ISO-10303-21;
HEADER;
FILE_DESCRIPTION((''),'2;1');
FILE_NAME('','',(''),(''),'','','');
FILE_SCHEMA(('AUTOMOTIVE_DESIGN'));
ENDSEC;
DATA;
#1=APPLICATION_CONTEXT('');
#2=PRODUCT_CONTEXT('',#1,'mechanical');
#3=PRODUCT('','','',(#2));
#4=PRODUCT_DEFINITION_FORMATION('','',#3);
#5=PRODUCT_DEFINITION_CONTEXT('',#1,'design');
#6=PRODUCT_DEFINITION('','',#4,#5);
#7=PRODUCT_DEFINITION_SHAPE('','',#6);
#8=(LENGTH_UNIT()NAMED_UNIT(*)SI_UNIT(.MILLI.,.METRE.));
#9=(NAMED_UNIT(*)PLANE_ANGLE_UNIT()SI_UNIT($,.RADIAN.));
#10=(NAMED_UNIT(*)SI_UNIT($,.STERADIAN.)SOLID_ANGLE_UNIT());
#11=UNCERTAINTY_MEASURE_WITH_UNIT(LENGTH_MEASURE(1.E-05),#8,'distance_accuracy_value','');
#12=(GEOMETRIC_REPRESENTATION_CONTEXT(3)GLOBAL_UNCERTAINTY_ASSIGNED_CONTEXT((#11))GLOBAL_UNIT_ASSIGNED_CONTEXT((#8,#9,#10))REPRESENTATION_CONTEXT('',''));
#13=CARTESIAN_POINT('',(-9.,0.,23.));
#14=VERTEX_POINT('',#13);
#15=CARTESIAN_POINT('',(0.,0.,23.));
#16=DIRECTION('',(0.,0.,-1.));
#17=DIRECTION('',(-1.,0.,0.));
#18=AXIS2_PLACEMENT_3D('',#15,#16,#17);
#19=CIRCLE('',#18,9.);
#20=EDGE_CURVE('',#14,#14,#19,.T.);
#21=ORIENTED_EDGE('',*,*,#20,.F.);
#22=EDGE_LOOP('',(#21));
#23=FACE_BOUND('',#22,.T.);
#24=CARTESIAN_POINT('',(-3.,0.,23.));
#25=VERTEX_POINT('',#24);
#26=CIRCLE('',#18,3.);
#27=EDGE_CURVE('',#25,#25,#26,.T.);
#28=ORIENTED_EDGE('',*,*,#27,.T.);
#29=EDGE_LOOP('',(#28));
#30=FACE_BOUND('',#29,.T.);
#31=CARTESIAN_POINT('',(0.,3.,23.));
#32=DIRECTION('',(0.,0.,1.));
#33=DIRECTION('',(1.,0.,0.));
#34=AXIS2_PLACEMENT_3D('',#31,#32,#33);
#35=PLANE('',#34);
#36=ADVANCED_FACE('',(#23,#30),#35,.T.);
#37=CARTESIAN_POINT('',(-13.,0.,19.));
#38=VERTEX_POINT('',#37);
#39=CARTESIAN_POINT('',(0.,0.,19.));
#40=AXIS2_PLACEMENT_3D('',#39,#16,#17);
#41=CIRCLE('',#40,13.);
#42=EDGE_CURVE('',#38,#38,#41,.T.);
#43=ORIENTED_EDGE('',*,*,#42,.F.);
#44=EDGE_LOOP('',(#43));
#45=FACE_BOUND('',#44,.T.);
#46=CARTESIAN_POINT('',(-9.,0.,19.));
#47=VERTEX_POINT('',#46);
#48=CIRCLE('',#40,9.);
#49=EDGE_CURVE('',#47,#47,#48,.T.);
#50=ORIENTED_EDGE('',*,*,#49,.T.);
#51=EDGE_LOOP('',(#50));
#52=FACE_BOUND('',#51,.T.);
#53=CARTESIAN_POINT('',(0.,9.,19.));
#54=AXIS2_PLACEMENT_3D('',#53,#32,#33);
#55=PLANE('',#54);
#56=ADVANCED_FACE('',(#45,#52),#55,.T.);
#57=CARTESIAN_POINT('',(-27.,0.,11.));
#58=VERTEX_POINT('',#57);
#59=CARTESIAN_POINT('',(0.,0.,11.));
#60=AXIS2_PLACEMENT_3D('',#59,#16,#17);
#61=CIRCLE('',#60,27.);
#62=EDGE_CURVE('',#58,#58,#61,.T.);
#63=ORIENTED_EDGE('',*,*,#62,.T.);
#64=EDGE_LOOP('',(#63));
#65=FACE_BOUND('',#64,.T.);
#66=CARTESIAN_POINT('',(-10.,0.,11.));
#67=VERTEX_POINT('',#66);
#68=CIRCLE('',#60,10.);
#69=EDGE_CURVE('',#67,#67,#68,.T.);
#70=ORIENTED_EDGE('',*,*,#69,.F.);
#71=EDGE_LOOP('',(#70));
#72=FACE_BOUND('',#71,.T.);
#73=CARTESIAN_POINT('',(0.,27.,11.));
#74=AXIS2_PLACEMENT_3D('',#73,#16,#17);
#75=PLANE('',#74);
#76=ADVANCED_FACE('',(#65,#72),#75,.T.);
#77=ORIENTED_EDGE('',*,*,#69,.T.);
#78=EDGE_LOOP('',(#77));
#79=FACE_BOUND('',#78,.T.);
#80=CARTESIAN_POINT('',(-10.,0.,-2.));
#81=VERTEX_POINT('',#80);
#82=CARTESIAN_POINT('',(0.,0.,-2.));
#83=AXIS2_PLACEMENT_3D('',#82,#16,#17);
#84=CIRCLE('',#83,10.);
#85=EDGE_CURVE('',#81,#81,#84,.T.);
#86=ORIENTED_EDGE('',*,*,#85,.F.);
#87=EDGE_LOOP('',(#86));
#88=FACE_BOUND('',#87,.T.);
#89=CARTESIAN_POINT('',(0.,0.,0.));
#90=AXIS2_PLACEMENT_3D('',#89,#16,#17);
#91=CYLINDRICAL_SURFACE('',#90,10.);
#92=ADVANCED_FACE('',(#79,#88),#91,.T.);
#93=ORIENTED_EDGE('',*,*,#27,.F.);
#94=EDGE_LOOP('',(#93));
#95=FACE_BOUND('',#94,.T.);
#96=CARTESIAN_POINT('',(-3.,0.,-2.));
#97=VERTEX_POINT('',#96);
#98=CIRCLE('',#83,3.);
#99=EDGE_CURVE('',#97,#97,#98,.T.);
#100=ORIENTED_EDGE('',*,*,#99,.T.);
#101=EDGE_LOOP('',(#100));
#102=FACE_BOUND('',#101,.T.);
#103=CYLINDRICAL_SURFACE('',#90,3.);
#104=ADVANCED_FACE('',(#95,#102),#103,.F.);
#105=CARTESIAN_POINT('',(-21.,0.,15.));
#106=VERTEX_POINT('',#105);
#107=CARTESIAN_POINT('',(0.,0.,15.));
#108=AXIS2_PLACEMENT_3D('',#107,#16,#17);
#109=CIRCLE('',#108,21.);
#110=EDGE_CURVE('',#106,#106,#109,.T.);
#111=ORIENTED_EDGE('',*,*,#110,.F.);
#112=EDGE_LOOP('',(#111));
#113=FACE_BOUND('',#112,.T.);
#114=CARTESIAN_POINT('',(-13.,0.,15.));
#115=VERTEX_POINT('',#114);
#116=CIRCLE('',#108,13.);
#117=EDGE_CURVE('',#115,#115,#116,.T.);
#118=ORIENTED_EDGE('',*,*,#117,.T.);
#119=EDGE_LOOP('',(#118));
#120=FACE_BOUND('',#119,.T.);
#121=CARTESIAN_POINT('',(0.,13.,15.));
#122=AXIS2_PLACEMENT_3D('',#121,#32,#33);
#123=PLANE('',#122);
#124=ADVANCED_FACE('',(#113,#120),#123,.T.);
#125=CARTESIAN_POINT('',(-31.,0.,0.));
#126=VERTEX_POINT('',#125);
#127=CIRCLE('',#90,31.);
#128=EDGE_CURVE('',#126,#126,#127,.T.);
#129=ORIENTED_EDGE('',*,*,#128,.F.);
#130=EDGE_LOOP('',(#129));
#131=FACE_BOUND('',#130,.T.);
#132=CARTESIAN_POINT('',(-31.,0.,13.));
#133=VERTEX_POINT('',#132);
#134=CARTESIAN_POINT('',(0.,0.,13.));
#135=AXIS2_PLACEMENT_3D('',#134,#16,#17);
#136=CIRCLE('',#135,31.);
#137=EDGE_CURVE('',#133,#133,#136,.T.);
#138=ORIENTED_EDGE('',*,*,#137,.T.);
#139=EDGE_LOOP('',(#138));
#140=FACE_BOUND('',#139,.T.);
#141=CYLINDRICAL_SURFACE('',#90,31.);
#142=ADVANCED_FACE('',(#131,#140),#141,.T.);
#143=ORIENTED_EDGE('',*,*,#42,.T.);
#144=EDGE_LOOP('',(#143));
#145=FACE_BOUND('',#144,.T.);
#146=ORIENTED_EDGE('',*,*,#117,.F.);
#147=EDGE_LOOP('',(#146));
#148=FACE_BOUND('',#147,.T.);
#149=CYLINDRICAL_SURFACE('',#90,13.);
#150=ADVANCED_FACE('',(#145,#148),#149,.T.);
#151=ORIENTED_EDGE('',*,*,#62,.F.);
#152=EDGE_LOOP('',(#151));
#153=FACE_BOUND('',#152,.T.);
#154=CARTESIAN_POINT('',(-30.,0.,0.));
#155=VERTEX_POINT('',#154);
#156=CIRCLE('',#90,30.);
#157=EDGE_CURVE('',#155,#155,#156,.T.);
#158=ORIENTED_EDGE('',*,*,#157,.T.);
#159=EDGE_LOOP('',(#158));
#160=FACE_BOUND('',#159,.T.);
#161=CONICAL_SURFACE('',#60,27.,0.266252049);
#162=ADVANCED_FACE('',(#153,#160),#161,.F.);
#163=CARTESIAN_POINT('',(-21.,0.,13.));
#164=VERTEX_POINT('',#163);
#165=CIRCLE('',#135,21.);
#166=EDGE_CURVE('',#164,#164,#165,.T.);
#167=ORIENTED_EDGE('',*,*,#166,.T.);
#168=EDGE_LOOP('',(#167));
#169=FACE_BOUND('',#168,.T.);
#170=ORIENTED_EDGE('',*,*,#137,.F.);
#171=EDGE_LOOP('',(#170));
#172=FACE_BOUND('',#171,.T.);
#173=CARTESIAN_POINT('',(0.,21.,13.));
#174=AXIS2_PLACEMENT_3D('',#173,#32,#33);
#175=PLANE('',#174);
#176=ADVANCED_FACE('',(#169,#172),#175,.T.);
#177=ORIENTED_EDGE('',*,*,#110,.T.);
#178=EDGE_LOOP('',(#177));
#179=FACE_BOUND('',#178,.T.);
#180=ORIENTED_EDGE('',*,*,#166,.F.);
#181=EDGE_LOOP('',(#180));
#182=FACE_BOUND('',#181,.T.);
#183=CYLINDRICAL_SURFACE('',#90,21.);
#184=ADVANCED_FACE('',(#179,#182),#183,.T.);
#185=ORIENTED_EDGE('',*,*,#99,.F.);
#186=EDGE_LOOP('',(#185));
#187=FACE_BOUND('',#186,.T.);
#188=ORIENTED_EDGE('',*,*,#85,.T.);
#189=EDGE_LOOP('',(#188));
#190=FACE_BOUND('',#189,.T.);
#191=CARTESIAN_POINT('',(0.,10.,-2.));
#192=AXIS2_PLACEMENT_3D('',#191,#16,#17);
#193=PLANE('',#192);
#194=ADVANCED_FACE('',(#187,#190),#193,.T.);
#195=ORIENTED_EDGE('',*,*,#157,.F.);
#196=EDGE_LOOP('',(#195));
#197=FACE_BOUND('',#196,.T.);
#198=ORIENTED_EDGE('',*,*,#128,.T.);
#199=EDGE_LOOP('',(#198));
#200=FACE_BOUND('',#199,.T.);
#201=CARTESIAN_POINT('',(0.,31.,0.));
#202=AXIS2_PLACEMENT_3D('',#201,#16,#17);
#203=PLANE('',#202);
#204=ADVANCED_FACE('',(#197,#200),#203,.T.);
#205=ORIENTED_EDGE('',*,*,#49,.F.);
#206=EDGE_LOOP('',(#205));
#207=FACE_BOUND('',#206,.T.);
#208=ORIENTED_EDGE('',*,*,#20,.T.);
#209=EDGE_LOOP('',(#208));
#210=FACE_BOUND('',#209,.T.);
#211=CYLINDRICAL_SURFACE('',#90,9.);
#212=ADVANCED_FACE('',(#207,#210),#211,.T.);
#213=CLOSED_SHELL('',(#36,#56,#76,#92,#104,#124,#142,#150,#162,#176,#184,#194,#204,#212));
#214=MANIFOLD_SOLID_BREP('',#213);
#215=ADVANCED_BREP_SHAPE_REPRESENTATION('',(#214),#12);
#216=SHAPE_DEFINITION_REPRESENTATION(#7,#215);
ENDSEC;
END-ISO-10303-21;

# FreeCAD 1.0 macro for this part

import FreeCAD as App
import Part
import Sketcher

doc = App.newDocument("Part")
body = doc.addObject("PartDesign::Body", "Body")

sketch1 = body.newObject("Sketcher::SketchObject", "Sketch")
sketch1.AttachmentSupport = (doc.getObject("YZ_Plane"), [""])
sketch1.MapMode = "FlatFace"
sketch1.addGeometry([
    Part.LineSegment(App.Vector(3, 23, 0), App.Vector(3, -2, 0)),
    Part.LineSegment(App.Vector(3, -2, 0), App.Vector(10, -2, 0)),
    Part.LineSegment(App.Vector(10, -2, 0), App.Vector(10, 11, 0)),
    Part.LineSegment(App.Vector(10, 11, 0), App.Vector(27, 11, 0)),
    Part.LineSegment(App.Vector(27, 11, 0), App.Vector(30, 0, 0)),
    Part.LineSegment(App.Vector(30, 0, 0), App.Vector(31, 0, 0)),
    Part.LineSegment(App.Vector(31, 0, 0), App.Vector(31, 13, 0)),
    Part.LineSegment(App.Vector(31, 13, 0), App.Vector(21, 13, 0)),
    Part.LineSegment(App.Vector(21, 13, 0), App.Vector(21, 15, 0)),
    Part.LineSegment(App.Vector(21, 15, 0), App.Vector(13, 15, 0)),
    Part.LineSegment(App.Vector(13, 15, 0), App.Vector(13, 19, 0)),
    Part.LineSegment(App.Vector(13, 19, 0), App.Vector(9, 19, 0)),
    Part.LineSegment(App.Vector(9, 19, 0), App.Vector(9, 23, 0)),
    Part.LineSegment(App.Vector(9, 23, 0), App.Vector(3, 23, 0)),
], False)
sketch1.addConstraint([
    Sketcher.Constraint("Coincident", 0, 2, 1, 1),
    Sketcher.Constraint("Coincident", 1, 2, 2, 1),
    Sketcher.Constraint("Coincident", 2, 2, 3, 1),
    Sketcher.Constraint("Coincident", 3, 2, 4, 1),
    Sketcher.Constraint("Coincident", 4, 2, 5, 1),
    Sketcher.Constraint("Coincident", 5, 2, 6, 1),
    Sketcher.Constraint("Coincident", 6, 2, 7, 1),
    Sketcher.Constraint("Coincident", 7, 2, 8, 1),
    Sketcher.Constraint("Coincident", 8, 2, 9, 1),
    Sketcher.Constraint("Coincident", 9, 2, 10, 1),
    Sketcher.Constraint("Coincident", 10, 2, 11, 1),
    Sketcher.Constraint("Coincident", 11, 2, 12, 1),
    Sketcher.Constraint("Coincident", 12, 2, 13, 1),
    Sketcher.Constraint("Coincident", 13, 2, 0, 1),
    Sketcher.Constraint("Vertical", 0),
    Sketcher.Constraint("Horizontal", 1),
    Sketcher.Constraint("Vertical", 2),
    Sketcher.Constraint("Horizontal", 3),
    Sketcher.Constraint("Horizontal", 5),
    Sketcher.Constraint("Vertical", 6),
    Sketcher.Constraint("Horizontal", 7),
    Sketcher.Constraint("Vertical", 8),
    Sketcher.Constraint("Horizontal", 9),
    Sketcher.Constraint("Vertical", 10),
    Sketcher.Constraint("Horizontal", 11),
    Sketcher.Constraint("Vertical", 12),
    Sketcher.Constraint("Horizontal", 13),
    Sketcher.Constraint("PointOnObject", 4, 2, -1),
    Sketcher.Constraint("Equal", 2, 6),
    Sketcher.Constraint("Equal", 11, 10),
    Sketcher.Constraint("Equal", 10, 12),
    Sketcher.Constraint("DistanceX", 1, 1, 1, 2, 7.0),
    Sketcher.Constraint("DistanceX", 3, 1, 3, 2, 17.0),
    Sketcher.Constraint("DistanceX", 5, 1, 5, 2, 1.0),
    Sketcher.Constraint("DistanceX", 7, 2, 7, 1, 10.0),
    Sketcher.Constraint("DistanceX", 9, 2, 9, 1, 8.0),
    Sketcher.Constraint("DistanceX", 11, 2, 11, 1, 4.0),
    Sketcher.Constraint("DistanceX", 13, 2, 13, 1, 6.0),
    Sketcher.Constraint("DistanceY", 0, 2, 0, 1, 25.0),
    Sketcher.Constraint("DistanceY", 2, 1, 2, 2, 13.0),
    Sketcher.Constraint("DistanceY", 8, 1, 8, 2, 2.0),
    Sketcher.Constraint("DistanceX", -1, 1, 0, 2, 3.0),
])
revolution = body.newObject("PartDesign::Revolution", "Revolution")
revolution.Profile = sketch1
revolution.ReferenceAxis = (sketch1, ["V_Axis"])
revolution.Angle = 360

doc.recompute()
